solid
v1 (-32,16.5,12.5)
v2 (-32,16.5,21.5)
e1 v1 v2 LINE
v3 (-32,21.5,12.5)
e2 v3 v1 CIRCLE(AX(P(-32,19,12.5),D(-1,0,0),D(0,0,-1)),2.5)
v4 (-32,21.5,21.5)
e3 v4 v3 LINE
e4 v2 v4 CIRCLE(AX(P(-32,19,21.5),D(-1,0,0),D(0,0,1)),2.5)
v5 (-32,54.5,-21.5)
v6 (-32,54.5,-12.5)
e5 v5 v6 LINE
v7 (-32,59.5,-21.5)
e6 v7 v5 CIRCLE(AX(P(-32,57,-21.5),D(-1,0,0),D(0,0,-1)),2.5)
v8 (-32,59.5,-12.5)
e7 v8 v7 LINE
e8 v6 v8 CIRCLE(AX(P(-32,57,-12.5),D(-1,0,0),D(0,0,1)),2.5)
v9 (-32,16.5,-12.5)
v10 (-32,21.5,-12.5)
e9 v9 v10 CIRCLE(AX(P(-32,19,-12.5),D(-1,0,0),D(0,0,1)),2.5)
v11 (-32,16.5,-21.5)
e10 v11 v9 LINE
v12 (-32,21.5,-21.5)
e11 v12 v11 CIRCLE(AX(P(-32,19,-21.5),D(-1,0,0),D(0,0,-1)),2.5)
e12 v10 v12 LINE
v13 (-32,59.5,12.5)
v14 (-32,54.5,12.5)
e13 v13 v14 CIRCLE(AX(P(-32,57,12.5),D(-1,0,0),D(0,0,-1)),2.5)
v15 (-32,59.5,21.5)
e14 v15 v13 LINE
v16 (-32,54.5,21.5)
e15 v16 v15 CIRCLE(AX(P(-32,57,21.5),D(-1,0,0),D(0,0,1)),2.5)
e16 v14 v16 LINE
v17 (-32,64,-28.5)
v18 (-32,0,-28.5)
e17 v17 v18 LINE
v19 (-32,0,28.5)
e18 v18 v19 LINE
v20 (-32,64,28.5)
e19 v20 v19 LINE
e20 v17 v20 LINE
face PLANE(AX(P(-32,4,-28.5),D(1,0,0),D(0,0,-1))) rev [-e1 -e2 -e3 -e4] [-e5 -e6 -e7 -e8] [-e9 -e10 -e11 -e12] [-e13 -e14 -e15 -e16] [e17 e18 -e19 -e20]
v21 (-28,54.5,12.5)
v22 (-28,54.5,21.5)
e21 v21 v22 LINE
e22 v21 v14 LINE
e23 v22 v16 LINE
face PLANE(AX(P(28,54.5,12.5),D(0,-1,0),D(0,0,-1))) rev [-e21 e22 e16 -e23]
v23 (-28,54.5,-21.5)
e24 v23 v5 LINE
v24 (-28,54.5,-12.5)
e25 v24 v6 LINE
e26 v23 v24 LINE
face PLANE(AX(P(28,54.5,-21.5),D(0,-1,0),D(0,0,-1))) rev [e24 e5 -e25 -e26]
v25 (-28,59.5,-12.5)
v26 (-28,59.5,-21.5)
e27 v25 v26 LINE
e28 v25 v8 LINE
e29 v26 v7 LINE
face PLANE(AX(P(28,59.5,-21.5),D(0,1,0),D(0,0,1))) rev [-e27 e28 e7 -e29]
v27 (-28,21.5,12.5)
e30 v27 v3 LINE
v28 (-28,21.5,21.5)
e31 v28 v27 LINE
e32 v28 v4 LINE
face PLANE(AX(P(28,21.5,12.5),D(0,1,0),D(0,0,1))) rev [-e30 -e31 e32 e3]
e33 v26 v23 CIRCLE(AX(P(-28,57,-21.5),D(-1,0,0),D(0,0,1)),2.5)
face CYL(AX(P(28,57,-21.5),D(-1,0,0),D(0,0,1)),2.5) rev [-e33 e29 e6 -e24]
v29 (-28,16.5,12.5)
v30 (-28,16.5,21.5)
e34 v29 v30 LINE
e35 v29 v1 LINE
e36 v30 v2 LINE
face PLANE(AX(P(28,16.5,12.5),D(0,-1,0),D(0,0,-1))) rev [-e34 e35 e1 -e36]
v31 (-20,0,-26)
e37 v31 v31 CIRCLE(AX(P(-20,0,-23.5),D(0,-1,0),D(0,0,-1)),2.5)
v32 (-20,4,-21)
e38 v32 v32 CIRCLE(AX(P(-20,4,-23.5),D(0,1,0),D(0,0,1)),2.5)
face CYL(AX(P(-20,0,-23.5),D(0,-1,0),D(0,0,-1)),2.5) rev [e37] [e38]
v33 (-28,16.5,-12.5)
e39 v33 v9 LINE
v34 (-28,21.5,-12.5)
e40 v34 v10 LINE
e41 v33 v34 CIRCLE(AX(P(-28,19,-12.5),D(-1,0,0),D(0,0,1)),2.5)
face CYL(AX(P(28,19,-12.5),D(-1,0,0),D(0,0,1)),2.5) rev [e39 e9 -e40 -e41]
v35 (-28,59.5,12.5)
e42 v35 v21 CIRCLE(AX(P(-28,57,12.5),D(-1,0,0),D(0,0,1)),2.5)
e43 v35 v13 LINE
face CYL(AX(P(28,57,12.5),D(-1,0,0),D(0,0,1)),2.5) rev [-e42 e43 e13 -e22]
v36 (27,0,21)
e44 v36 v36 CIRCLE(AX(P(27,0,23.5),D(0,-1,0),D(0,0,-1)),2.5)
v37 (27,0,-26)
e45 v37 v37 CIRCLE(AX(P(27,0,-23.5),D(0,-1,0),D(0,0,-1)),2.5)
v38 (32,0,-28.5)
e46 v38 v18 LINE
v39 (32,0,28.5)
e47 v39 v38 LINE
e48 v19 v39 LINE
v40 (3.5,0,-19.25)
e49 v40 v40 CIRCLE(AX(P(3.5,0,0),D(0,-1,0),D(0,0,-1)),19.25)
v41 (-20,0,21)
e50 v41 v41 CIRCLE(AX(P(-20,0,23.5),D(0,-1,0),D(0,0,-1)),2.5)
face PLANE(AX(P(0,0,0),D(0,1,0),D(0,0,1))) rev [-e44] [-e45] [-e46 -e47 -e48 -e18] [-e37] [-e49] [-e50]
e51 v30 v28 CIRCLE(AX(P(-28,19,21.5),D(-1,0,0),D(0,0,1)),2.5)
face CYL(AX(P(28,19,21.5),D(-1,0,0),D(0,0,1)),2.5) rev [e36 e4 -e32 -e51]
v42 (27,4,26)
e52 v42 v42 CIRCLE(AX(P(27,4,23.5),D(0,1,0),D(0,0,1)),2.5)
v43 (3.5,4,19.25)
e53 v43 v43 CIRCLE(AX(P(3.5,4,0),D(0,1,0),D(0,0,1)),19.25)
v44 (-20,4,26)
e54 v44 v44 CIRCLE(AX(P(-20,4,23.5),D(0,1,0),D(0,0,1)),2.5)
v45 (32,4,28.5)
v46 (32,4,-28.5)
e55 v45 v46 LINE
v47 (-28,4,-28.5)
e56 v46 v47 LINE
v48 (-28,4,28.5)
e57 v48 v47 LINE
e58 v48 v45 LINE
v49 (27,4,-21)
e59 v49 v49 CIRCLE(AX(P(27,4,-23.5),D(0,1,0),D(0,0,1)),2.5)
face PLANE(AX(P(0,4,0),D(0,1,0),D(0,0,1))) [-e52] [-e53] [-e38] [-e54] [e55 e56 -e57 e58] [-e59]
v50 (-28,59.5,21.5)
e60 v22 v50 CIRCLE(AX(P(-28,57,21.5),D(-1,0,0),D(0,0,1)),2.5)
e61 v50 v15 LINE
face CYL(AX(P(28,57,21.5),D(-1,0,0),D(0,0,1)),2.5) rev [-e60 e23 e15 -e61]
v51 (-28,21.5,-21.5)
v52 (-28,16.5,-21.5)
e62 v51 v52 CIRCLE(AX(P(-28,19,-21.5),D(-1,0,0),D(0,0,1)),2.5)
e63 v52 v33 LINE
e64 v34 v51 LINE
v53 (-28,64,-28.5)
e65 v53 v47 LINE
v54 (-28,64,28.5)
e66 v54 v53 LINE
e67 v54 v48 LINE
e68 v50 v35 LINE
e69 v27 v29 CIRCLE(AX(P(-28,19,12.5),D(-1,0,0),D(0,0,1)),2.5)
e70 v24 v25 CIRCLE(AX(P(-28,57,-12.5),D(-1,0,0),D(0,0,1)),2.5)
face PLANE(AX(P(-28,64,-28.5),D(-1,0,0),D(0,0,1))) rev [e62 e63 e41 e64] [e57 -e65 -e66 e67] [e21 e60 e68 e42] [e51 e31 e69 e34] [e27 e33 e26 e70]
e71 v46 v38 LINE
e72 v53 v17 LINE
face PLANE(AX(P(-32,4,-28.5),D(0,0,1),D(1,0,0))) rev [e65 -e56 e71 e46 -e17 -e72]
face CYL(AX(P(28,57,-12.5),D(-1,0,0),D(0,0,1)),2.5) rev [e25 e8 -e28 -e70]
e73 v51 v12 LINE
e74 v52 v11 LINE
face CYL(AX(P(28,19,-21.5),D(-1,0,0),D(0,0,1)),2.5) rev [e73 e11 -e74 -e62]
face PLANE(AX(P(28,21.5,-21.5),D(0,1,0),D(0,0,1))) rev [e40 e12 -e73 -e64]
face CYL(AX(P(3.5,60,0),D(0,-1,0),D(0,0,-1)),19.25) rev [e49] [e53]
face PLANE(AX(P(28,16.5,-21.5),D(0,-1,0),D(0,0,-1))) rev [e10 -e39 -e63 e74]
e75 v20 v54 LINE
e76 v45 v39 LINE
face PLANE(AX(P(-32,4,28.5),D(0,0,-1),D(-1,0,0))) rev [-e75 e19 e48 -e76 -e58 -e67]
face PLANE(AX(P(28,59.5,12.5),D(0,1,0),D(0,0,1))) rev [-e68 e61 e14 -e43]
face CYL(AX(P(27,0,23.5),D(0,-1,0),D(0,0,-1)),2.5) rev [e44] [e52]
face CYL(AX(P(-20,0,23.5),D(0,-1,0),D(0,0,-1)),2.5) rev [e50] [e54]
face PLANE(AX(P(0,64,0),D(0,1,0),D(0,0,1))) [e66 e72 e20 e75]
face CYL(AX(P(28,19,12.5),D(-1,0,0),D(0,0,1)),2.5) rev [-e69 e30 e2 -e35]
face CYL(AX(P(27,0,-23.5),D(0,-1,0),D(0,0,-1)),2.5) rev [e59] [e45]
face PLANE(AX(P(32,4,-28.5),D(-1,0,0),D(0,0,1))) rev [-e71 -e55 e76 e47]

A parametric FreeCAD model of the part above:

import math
import FreeCAD as App
import Part
import Sketcher
from FreeCAD import Vector

doc = App.newDocument("Part")
body = doc.addObject("PartDesign::Body", "Body")

# Sketch on XZ plane
sketch1 = doc.addObject("Sketcher::SketchObject", "Sketch")
body.addObject(sketch1)
sketch1.AttachmentSupport = (doc.XZ_Plane, [""])
sketch1.MapMode = "FlatFace"
sketch1.addGeometry([
    Part.LineSegment(Vector(-32, -28.5, 0), Vector(-32, 28.5, 0)),
    Part.LineSegment(Vector(-32, 28.5, 0), Vector(32, 28.5, 0)),
    Part.LineSegment(Vector(32, 28.5, 0), Vector(32, -28.5, 0)),
    Part.LineSegment(Vector(32, -28.5, 0), Vector(-32, -28.5, 0)),
], False)
sketch1.addConstraint([
    Sketcher.Constraint("Coincident", 0, 2, 1, 1),
    Sketcher.Constraint("Coincident", 1, 2, 2, 1),
    Sketcher.Constraint("Coincident", 2, 2, 3, 1),
    Sketcher.Constraint("Coincident", 3, 2, 0, 1),
    Sketcher.Constraint("Vertical", 0),
    Sketcher.Constraint("Horizontal", 1),
    Sketcher.Constraint("Vertical", 2),
    Sketcher.Constraint("Horizontal", 3),
    Sketcher.Constraint("Symmetric", 0, 2, 2, 2, -1, 1),
    Sketcher.Constraint("DistanceX", 1, 1, 1, 2, 64.0),
    Sketcher.Constraint("DistanceY", 0, 1, 0, 2, 57.0),
])
pad1 = doc.addObject("PartDesign::Pad", "Pad")
body.addObject(pad1)
pad1.Profile = sketch1
pad1.Length = 4
pad1.Reversed = True

# Sketch on XZ plane
sketch2 = doc.addObject("Sketcher::SketchObject", "Sketch001")
body.addObject(sketch2)
sketch2.AttachmentSupport = (doc.XZ_Plane, [""])
sketch2.MapMode = "FlatFace"
sketch2.AttachmentOffset = App.Placement(Vector(0, 0, -4), App.Rotation())
sketch2.addGeometry([
    Part.LineSegment(Vector(-32, -28.5, 0), Vector(-32, 28.5, 0)),
    Part.LineSegment(Vector(-32, 28.5, 0), Vector(-28, 28.5, 0)),
    Part.LineSegment(Vector(-28, 28.5, 0), Vector(-28, -28.5, 0)),
    Part.LineSegment(Vector(-28, -28.5, 0), Vector(-32, -28.5, 0)),
], False)
sketch2.addConstraint([
    Sketcher.Constraint("Coincident", 0, 2, 1, 1),
    Sketcher.Constraint("Coincident", 1, 2, 2, 1),
    Sketcher.Constraint("Coincident", 2, 2, 3, 1),
    Sketcher.Constraint("Coincident", 3, 2, 0, 1),
    Sketcher.Constraint("Vertical", 0),
    Sketcher.Constraint("Horizontal", 1),
    Sketcher.Constraint("Vertical", 2),
    Sketcher.Constraint("Horizontal", 3),
    Sketcher.Constraint("DistanceX", 1, 1, 1, 2, 4.0),
    Sketcher.Constraint("DistanceY", 0, 1, 0, 2, 57.0),
    Sketcher.Constraint("DistanceX", 0, 2, -1, 1, 32.0),
    Sketcher.Constraint("DistanceY", -1, 1, 0, 2, 28.5),
])
pad2 = doc.addObject("PartDesign::Pad", "Pad001")
body.addObject(pad2)
pad2.Profile = sketch2
pad2.Length = 60
pad2.Reversed = True

# Sketch on XZ plane
sketch3 = doc.addObject("Sketcher::SketchObject", "Sketch002")
body.addObject(sketch3)
sketch3.AttachmentSupport = (doc.XZ_Plane, [""])
sketch3.MapMode = "FlatFace"
sketch3.addGeometry(Part.Circle(Vector(3.5, 0, 0), Vector(0, 0, 1), 19.25), False)
sketch3.addConstraint([
    Sketcher.Constraint("PointOnObject", 0, 3, -1),
    Sketcher.Constraint("Diameter", 0, 38.5),
    Sketcher.Constraint("DistanceX", -1, 1, 0, 3, 3.5),
])
pocket1 = doc.addObject("PartDesign::Pocket", "Pocket")
body.addObject(pocket1)
pocket1.Profile = sketch3
pocket1.Length = 60

# Sketch on XZ plane
sketch4 = doc.addObject("Sketcher::SketchObject", "Sketch003")
body.addObject(sketch4)
sketch4.AttachmentSupport = (doc.XZ_Plane, [""])
sketch4.MapMode = "FlatFace"
sketch4.addGeometry([
    Part.Circle(Vector(27, 23.5, 0), Vector(0, 0, 1), 2.5),
    Part.Circle(Vector(27, -23.5, 0), Vector(0, 0, 1), 2.5),
    Part.Circle(Vector(-20, -23.5, 0), Vector(0, 0, 1), 2.5),
    Part.Circle(Vector(-20, 23.5, 0), Vector(0, 0, 1), 2.5),
], False)
sketch4.addConstraint([
    Sketcher.Constraint("Equal", 0, 1),
    Sketcher.Constraint("Equal", 1, 2),
    Sketcher.Constraint("Equal", 2, 3),
    Sketcher.Constraint("Symmetric", 0, 3, 1, 3, -1),
    Sketcher.Constraint("Symmetric", 2, 3, 3, 3, -1),
    Sketcher.Constraint("Horizontal", 1, 3, 2, 3),
    Sketcher.Constraint("Diameter", 0, 5.0),
    Sketcher.Constraint("DistanceX", -1, 1, 0, 3, 27.0),
    Sketcher.Constraint("DistanceX", 2, 3, -1, 1, 20.0),
    Sketcher.Constraint("DistanceY", 1, 3, 0, 3, 47.0),
])
doc.recompute()
hole = doc.addObject("PartDesign::Hole", "Hole")
body.addObject(hole)
hole.Profile = sketch4
hole.ThreadType = "None"
hole.Diameter = 5
hole.DepthType = "ThroughAll"

# Sketch on YZ plane
sketch5 = doc.addObject("Sketcher::SketchObject", "Sketch004")
body.addObject(sketch5)
sketch5.AttachmentSupport = (doc.YZ_Plane, [""])
sketch5.MapMode = "FlatFace"
sketch5.AttachmentOffset = App.Placement(Vector(0, 0, -32), App.Rotation())
sketch5.addGeometry([
    Part.LineSegment(Vector(16.5, -21.5, 0), Vector(16.5, -12.5, 0)),  # 0
    Part.ArcOfCircle(Part.Circle(Vector(19, -12.5, 0), Vector(0, 0, 1), 2.5), math.radians(0), math.radians(180)),  # 1
    Part.LineSegment(Vector(21.5, -12.5, 0), Vector(21.5, -21.5, 0)),  # 2
    Part.ArcOfCircle(Part.Circle(Vector(19, -21.5, 0), Vector(0, 0, 1), 2.5), math.radians(180), math.radians(360)),  # 3
    Part.LineSegment(Vector(16.5, 12.5, 0), Vector(16.5, 21.5, 0)),  # 4
    Part.ArcOfCircle(Part.Circle(Vector(19, 21.5, 0), Vector(0, 0, 1), 2.5), math.radians(0), math.radians(180)),  # 5
    Part.LineSegment(Vector(21.5, 21.5, 0), Vector(21.5, 12.5, 0)),  # 6
    Part.ArcOfCircle(Part.Circle(Vector(19, 12.5, 0), Vector(0, 0, 1), 2.5), math.radians(180), math.radians(360)),  # 7
    Part.LineSegment(Vector(54.5, -21.5, 0), Vector(54.5, -12.5, 0)),  # 8
    Part.ArcOfCircle(Part.Circle(Vector(57, -12.5, 0), Vector(0, 0, 1), 2.5), math.radians(0), math.radians(180)),  # 9
    Part.LineSegment(Vector(59.5, -12.5, 0), Vector(59.5, -21.5, 0)),  # 10
    Part.ArcOfCircle(Part.Circle(Vector(57, -21.5, 0), Vector(0, 0, 1), 2.5), math.radians(180), math.radians(360)),  # 11
    Part.LineSegment(Vector(54.5, 12.5, 0), Vector(54.5, 21.5, 0)),  # 12
    Part.ArcOfCircle(Part.Circle(Vector(57, 21.5, 0), Vector(0, 0, 1), 2.5), math.radians(0), math.radians(180)),  # 13
    Part.LineSegment(Vector(59.5, 21.5, 0), Vector(59.5, 12.5, 0)),  # 14
    Part.ArcOfCircle(Part.Circle(Vector(57, 12.5, 0), Vector(0, 0, 1), 2.5), math.radians(180), math.radians(360)),  # 15
], False)
sketch5.addConstraint([
    Sketcher.Constraint("Tangent", 0, 2, 1, 2),
    Sketcher.Constraint("Tangent", 1, 1, 2, 1),
    Sketcher.Constraint("Tangent", 2, 2, 3, 2),
    Sketcher.Constraint("Tangent", 3, 1, 0, 1),
    Sketcher.Constraint("Tangent", 4, 2, 5, 2),
    Sketcher.Constraint("Tangent", 5, 1, 6, 1),
    Sketcher.Constraint("Tangent", 6, 2, 7, 2),
    Sketcher.Constraint("Tangent", 7, 1, 4, 1),
    Sketcher.Constraint("Tangent", 8, 2, 9, 2),
    Sketcher.Constraint("Tangent", 9, 1, 10, 1),
    Sketcher.Constraint("Tangent", 10, 2, 11, 2),
    Sketcher.Constraint("Tangent", 11, 1, 8, 1),
    Sketcher.Constraint("Tangent", 12, 2, 13, 2),
    Sketcher.Constraint("Tangent", 13, 1, 14, 1),
    Sketcher.Constraint("Tangent", 14, 2, 15, 2),
    Sketcher.Constraint("Tangent", 15, 1, 12, 1),
    Sketcher.Constraint("Vertical", 0),
    Sketcher.Constraint("Vertical", 2),
    Sketcher.Constraint("Vertical", 4),
    Sketcher.Constraint("Vertical", 6),
    Sketcher.Constraint("Vertical", 8),
    Sketcher.Constraint("Vertical", 10),
    Sketcher.Constraint("Vertical", 12),
    Sketcher.Constraint("Vertical", 14),
    Sketcher.Constraint("Equal", 3, 5),
    Sketcher.Constraint("Equal", 7, 9),
    Sketcher.Constraint("Equal", 11, 13),
    Sketcher.Constraint("Symmetric", 3, 3, 5, 3, -1),
    Sketcher.Constraint("Symmetric", 11, 3, 13, 3, -1),
    Sketcher.Constraint("Horizontal", 1, 3, 9, 3),
    Sketcher.Constraint("Horizontal", 3, 3, 11, 3),
    Sketcher.Constraint("Horizontal", 7, 3, 15, 3),
    Sketcher.Constraint("Equal", 2, 4),
    Sketcher.Constraint("Radius", 1, 2.5),
    Sketcher.Constraint("DistanceY", 0, 1, 0, 2, 9.0),
    Sketcher.Constraint("DistanceX", -1, 1, 1, 3, 19.0),
    Sketcher.Constraint("DistanceX", -1, 1, 9, 3, 57.0),
    Sketcher.Constraint("DistanceY", 1, 3, 5, 3, 34.0),
])
pocket2 = doc.addObject("PartDesign::Pocket", "Pocket001")
body.addObject(pocket2)
pocket2.Profile = sketch5
pocket2.Length = 60
pocket2.Reversed = True

doc.recompute()
